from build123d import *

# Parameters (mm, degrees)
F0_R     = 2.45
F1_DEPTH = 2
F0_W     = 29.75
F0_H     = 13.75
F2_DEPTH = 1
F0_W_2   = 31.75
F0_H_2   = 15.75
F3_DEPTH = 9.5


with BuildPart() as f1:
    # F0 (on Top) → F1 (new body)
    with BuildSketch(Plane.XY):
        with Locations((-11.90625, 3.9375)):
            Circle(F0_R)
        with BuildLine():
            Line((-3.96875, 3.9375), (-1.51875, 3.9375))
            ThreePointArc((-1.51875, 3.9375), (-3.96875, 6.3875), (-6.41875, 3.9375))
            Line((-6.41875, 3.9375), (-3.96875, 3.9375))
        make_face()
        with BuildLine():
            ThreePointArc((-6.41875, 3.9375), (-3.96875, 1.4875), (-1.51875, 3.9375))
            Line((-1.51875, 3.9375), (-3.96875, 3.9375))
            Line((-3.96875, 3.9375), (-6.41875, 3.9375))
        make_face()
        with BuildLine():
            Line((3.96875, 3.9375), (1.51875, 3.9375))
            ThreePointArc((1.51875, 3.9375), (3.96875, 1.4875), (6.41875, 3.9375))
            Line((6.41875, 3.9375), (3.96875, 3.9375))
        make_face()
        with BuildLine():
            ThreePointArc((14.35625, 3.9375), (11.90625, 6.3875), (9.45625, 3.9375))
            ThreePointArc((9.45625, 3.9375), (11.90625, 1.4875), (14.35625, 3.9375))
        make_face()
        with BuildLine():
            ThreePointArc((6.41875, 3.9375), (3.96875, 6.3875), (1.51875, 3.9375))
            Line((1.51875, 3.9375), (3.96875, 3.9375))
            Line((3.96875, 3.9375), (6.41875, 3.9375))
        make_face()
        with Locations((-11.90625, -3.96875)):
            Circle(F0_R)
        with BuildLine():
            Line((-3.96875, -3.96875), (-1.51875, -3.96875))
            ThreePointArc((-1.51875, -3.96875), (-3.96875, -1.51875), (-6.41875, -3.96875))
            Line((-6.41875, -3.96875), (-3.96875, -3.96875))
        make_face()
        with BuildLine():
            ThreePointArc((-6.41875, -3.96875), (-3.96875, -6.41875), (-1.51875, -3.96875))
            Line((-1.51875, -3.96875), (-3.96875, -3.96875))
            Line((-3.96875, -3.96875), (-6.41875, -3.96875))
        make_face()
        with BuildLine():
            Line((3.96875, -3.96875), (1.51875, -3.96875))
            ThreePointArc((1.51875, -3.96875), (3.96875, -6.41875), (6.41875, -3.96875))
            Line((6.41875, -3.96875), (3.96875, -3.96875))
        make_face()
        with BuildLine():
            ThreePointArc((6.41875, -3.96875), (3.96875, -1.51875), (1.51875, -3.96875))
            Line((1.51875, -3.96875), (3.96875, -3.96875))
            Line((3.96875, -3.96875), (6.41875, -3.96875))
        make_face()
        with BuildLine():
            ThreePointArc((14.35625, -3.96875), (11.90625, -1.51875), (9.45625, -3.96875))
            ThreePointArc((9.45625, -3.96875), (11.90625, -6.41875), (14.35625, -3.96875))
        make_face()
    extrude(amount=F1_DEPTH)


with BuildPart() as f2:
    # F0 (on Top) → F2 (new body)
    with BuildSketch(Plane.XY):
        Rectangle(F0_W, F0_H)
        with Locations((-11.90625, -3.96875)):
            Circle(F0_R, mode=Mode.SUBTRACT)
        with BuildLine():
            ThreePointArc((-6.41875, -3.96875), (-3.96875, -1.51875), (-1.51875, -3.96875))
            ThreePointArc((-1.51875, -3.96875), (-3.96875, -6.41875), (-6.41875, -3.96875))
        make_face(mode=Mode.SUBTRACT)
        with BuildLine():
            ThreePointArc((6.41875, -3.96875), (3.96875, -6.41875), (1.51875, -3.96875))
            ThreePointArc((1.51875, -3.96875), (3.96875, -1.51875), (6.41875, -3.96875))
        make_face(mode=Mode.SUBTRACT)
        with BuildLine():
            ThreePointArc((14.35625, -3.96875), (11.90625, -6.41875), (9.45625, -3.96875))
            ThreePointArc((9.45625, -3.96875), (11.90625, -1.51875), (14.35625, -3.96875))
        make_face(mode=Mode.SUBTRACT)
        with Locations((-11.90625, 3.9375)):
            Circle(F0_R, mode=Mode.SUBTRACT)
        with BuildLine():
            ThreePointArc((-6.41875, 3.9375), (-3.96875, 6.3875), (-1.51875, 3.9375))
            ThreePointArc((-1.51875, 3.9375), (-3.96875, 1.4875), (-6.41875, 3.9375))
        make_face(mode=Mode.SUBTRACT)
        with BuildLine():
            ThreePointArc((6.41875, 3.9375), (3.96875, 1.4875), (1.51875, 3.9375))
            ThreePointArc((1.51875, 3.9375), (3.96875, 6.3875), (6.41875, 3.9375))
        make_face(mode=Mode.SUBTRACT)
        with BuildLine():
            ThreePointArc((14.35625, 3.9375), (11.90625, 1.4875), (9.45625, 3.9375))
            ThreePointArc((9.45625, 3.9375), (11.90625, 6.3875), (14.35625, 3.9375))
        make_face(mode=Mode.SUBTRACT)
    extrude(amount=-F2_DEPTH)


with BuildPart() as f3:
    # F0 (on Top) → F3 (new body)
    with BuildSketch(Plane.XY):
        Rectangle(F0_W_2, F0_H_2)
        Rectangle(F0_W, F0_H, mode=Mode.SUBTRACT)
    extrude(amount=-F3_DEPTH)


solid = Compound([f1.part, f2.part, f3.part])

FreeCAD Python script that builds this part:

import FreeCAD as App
import Part
import Sketcher
from FreeCAD import Vector

doc = App.newDocument("Part")
body = doc.addObject("PartDesign::Body", "Body")
body.AllowCompound = True

# Sketch on XY plane
sketch1 = body.newObject("Sketcher::SketchObject", "Sketch")
sketch1.AttachmentSupport = (doc.getObject("XY_Plane"), [""])
sketch1.MapMode = "FlatFace"
sketch1.addGeometry(Part.Circle(Vector(-11.9, 3.9, 0), Vector(0, 0, 1), 2.5), False)
sketch1.addGeometry(Part.Circle(Vector(-4, 3.9, 0), Vector(0, 0, 1), 2.5), False)
sketch1.addGeometry(Part.Circle(Vector(4, 3.9, 0), Vector(0, 0, 1), 2.5), False)
sketch1.addGeometry(Part.Circle(Vector(11.9, 3.9, 0), Vector(0, 0, 1), 2.5), False)
sketch1.addGeometry(Part.Circle(Vector(-11.9, -4, 0), Vector(0, 0, 1), 2.5), False)
sketch1.addGeometry(Part.Circle(Vector(-4, -4, 0), Vector(0, 0, 1), 2.5), False)
sketch1.addGeometry(Part.Circle(Vector(4, -4, 0), Vector(0, 0, 1), 2.5), False)
sketch1.addGeometry(Part.Circle(Vector(11.9, -4, 0), Vector(0, 0, 1), 2.5), False)
sketch1.addConstraint(Sketcher.Constraint("Equal", 0, 1))
sketch1.addConstraint(Sketcher.Constraint("Equal", 1, 2))
sketch1.addConstraint(Sketcher.Constraint("Equal", 2, 3))
sketch1.addConstraint(Sketcher.Constraint("Equal", 3, 4))
sketch1.addConstraint(Sketcher.Constraint("Equal", 4, 5))
sketch1.addConstraint(Sketcher.Constraint("Equal", 5, 6))
sketch1.addConstraint(Sketcher.Constraint("Equal", 6, 7))
sketch1.addConstraint(Sketcher.Constraint("Symmetric", 1, 3, 2, 3, -2))
sketch1.addConstraint(Sketcher.Constraint("Symmetric", 0, 3, 3, 3, -2))
sketch1.addConstraint(Sketcher.Constraint("Symmetric", 5, 3, 6, 3, -2))
sketch1.addConstraint(Sketcher.Constraint("Symmetric", 4, 3, 7, 3, -2))
sketch1.addConstraint(Sketcher.Constraint("Horizontal", 0, 3, 1, 3))
sketch1.addConstraint(Sketcher.Constraint("Horizontal", 4, 3, 5, 3))
sketch1.addConstraint(Sketcher.Constraint("Vertical", 0, 3, 4, 3))
sketch1.addConstraint(Sketcher.Constraint("Vertical", 1, 3, 5, 3))
sketch1.addConstraint(Sketcher.Constraint("Diameter", 0, 4.9))
sketch1.addConstraint(Sketcher.Constraint("DistanceX", 0, 3, 2, 3, 15.875))
sketch1.addConstraint(Sketcher.Constraint("DistanceY", -1, 1, 0, 3, 3.9375))
sketch1.addConstraint(Sketcher.Constraint("DistanceX", 0, 3, 1, 3, 7.9375))
sketch1.addConstraint(Sketcher.Constraint("DistanceY", 4, 3, -1, 1, 3.96875))
pad1 = body.newObject("PartDesign::Pad", "Pad")
pad1.Profile = sketch1
pad1.Length = 2
body2 = doc.addObject("PartDesign::Body", "Body001")

# Sketch on XY plane
sketch2 = body2.newObject("Sketcher::SketchObject", "Sketch001")
sketch2.AttachmentSupport = (doc.getObject("XY_Plane001"), [""])
sketch2.MapMode = "FlatFace"
sketch2.addGeometry(Part.LineSegment(Vector(-14.9, 6.9, 0), Vector(-14.9, -6.9, 0)), False)
sketch2.addGeometry(Part.LineSegment(Vector(-14.9, -6.9, 0), Vector(14.9, -6.9, 0)), False)
sketch2.addGeometry(Part.LineSegment(Vector(14.9, -6.9, 0), Vector(14.9, 6.9, 0)), False)
sketch2.addGeometry(Part.LineSegment(Vector(14.9, 6.9, 0), Vector(-14.9, 6.9, 0)), False)
sketch2.addGeometry(Part.Circle(Vector(-11.9, -4, 0), Vector(0, 0, 1), 2.5), False)
sketch2.addGeometry(Part.Circle(Vector(-4, -4, 0), Vector(0, 0, 1), 2.5), False)
sketch2.addGeometry(Part.Circle(Vector(4, -4, 0), Vector(0, 0, 1), 2.5), False)
sketch2.addGeometry(Part.Circle(Vector(11.9, -4, 0), Vector(0, 0, 1), 2.5), False)
sketch2.addGeometry(Part.Circle(Vector(-11.9, 3.9, 0), Vector(0, 0, 1), 2.5), False)
sketch2.addGeometry(Part.Circle(Vector(-4, 3.9, 0), Vector(0, 0, 1), 2.5), False)
sketch2.addGeometry(Part.Circle(Vector(4, 3.9, 0), Vector(0, 0, 1), 2.5), False)
sketch2.addGeometry(Part.Circle(Vector(11.9, 3.9, 0), Vector(0, 0, 1), 2.5), False)
sketch2.addConstraint(Sketcher.Constraint("Coincident", 0, 2, 1, 1))
sketch2.addConstraint(Sketcher.Constraint("Coincident", 1, 2, 2, 1))
sketch2.addConstraint(Sketcher.Constraint("Coincident", 2, 2, 3, 1))
sketch2.addConstraint(Sketcher.Constraint("Coincident", 3, 2, 0, 1))
sketch2.addConstraint(Sketcher.Constraint("Vertical", 0))
sketch2.addConstraint(Sketcher.Constraint("Horizontal", 1))
sketch2.addConstraint(Sketcher.Constraint("Vertical", 2))
sketch2.addConstraint(Sketcher.Constraint("Horizontal", 3))
sketch2.addConstraint(Sketcher.Constraint("Equal", 4, 5))
sketch2.addConstraint(Sketcher.Constraint("Equal", 5, 6))
sketch2.addConstraint(Sketcher.Constraint("Equal", 6, 7))
sketch2.addConstraint(Sketcher.Constraint("Equal", 7, 8))
sketch2.addConstraint(Sketcher.Constraint("Equal", 8, 9))
sketch2.addConstraint(Sketcher.Constraint("Equal", 9, 10))
sketch2.addConstraint(Sketcher.Constraint("Equal", 10, 11))
sketch2.addConstraint(Sketcher.Constraint("Symmetric", 0, 2, 2, 2, -1, 1))
sketch2.addConstraint(Sketcher.Constraint("Symmetric", 5, 3, 6, 3, -2))
sketch2.addConstraint(Sketcher.Constraint("Symmetric", 4, 3, 7, 3, -2))
sketch2.addConstraint(Sketcher.Constraint("Symmetric", 9, 3, 10, 3, -2))
sketch2.addConstraint(Sketcher.Constraint("Symmetric", 8, 3, 11, 3, -2))
sketch2.addConstraint(Sketcher.Constraint("Horizontal", 4, 3, 5, 3))
sketch2.addConstraint(Sketcher.Constraint("Horizontal", 8, 3, 9, 3))
sketch2.addConstraint(Sketcher.Constraint("Vertical", 4, 3, 8, 3))
sketch2.addConstraint(Sketcher.Constraint("Vertical", 5, 3, 9, 3))
sketch2.addConstraint(Sketcher.Constraint("Diameter", 4, 4.9))
sketch2.addConstraint(Sketcher.Constraint("DistanceX", 1, 1, 1, 2, 29.75))
sketch2.addConstraint(Sketcher.Constraint("DistanceY", 0, 2, 0, 1, 13.75))
sketch2.addConstraint(Sketcher.Constraint("DistanceX", 4, 3, 6, 3, 15.875))
sketch2.addConstraint(Sketcher.Constraint("DistanceY", -1, 1, 8, 3, 3.9375))
sketch2.addConstraint(Sketcher.Constraint("DistanceX", 4, 3, 5, 3, 7.9375))
sketch2.addConstraint(Sketcher.Constraint("DistanceY", 4, 3, -1, 1, 3.96875))
pad2 = body2.newObject("PartDesign::Pad", "Pad001")
pad2.Profile = sketch2
pad2.Length = 1
pad2.Reversed = True
body3 = doc.addObject("PartDesign::Body", "Body002")

# Sketch on XY plane
sketch3 = body3.newObject("Sketcher::SketchObject", "Sketch002")
sketch3.AttachmentSupport = (doc.getObject("XY_Plane002"), [""])
sketch3.MapMode = "FlatFace"
sketch3.addGeometry(Part.LineSegment(Vector(-16, 8, 0), Vector(-16, -8, 0)), False)
sketch3.addGeometry(Part.LineSegment(Vector(-16, -8, 0), Vector(16, -8, 0)), False)
sketch3.addGeometry(Part.LineSegment(Vector(16, -8, 0), Vector(16, 8, 0)), False)
sketch3.addGeometry(Part.LineSegment(Vector(16, 8, 0), Vector(-16, 8, 0)), False)
sketch3.addGeometry(Part.LineSegment(Vector(15, -7, 0), Vector(-15, -7, 0)), False)
sketch3.addGeometry(Part.LineSegment(Vector(-15, -7, 0), Vector(-15, 7, 0)), False)
sketch3.addGeometry(Part.LineSegment(Vector(-15, 7, 0), Vector(15, 7, 0)), False)
sketch3.addGeometry(Part.LineSegment(Vector(15, 7, 0), Vector(15, -7, 0)), False)
sketch3.addConstraint(Sketcher.Constraint("Coincident", 0, 2, 1, 1))
sketch3.addConstraint(Sketcher.Constraint("Coincident", 1, 2, 2, 1))
sketch3.addConstraint(Sketcher.Constraint("Coincident", 2, 2, 3, 1))
sketch3.addConstraint(Sketcher.Constraint("Coincident", 3, 2, 0, 1))
sketch3.addConstraint(Sketcher.Constraint("Coincident", 4, 2, 5, 1))
sketch3.addConstraint(Sketcher.Constraint("Coincident", 5, 2, 6, 1))
sketch3.addConstraint(Sketcher.Constraint("Coincident", 6, 2, 7, 1))
sketch3.addConstraint(Sketcher.Constraint("Coincident", 7, 2, 4, 1))
sketch3.addConstraint(Sketcher.Constraint("Vertical", 0))
sketch3.addConstraint(Sketcher.Constraint("Horizontal", 1))
sketch3.addConstraint(Sketcher.Constraint("Vertical", 2))
sketch3.addConstraint(Sketcher.Constraint("Horizontal", 3))
sketch3.addConstraint(Sketcher.Constraint("Horizontal", 4))
sketch3.addConstraint(Sketcher.Constraint("Vertical", 5))
sketch3.addConstraint(Sketcher.Constraint("Horizontal", 6))
sketch3.addConstraint(Sketcher.Constraint("Vertical", 7))
sketch3.addConstraint(Sketcher.Constraint("Symmetric", 0, 2, 2, 2, -1, 1))
sketch3.addConstraint(Sketcher.Constraint("Symmetric", 4, 2, 6, 2, -1, 1))
sketch3.addConstraint(Sketcher.Constraint("DistanceX", 0, 2, 4, 2, 1.0))
sketch3.addConstraint(Sketcher.Constraint("DistanceY", 0, 2, 4, 2, 1.0))
sketch3.addConstraint(Sketcher.Constraint("DistanceX", 1, 1, 1, 2, 31.75))
sketch3.addConstraint(Sketcher.Constraint("DistanceY", 0, 2, 0, 1, 15.75))
pad3 = body3.newObject("PartDesign::Pad", "Pad002")
pad3.Profile = sketch3
pad3.Length = 9.5
pad3.Reversed = True

doc.recompute()
